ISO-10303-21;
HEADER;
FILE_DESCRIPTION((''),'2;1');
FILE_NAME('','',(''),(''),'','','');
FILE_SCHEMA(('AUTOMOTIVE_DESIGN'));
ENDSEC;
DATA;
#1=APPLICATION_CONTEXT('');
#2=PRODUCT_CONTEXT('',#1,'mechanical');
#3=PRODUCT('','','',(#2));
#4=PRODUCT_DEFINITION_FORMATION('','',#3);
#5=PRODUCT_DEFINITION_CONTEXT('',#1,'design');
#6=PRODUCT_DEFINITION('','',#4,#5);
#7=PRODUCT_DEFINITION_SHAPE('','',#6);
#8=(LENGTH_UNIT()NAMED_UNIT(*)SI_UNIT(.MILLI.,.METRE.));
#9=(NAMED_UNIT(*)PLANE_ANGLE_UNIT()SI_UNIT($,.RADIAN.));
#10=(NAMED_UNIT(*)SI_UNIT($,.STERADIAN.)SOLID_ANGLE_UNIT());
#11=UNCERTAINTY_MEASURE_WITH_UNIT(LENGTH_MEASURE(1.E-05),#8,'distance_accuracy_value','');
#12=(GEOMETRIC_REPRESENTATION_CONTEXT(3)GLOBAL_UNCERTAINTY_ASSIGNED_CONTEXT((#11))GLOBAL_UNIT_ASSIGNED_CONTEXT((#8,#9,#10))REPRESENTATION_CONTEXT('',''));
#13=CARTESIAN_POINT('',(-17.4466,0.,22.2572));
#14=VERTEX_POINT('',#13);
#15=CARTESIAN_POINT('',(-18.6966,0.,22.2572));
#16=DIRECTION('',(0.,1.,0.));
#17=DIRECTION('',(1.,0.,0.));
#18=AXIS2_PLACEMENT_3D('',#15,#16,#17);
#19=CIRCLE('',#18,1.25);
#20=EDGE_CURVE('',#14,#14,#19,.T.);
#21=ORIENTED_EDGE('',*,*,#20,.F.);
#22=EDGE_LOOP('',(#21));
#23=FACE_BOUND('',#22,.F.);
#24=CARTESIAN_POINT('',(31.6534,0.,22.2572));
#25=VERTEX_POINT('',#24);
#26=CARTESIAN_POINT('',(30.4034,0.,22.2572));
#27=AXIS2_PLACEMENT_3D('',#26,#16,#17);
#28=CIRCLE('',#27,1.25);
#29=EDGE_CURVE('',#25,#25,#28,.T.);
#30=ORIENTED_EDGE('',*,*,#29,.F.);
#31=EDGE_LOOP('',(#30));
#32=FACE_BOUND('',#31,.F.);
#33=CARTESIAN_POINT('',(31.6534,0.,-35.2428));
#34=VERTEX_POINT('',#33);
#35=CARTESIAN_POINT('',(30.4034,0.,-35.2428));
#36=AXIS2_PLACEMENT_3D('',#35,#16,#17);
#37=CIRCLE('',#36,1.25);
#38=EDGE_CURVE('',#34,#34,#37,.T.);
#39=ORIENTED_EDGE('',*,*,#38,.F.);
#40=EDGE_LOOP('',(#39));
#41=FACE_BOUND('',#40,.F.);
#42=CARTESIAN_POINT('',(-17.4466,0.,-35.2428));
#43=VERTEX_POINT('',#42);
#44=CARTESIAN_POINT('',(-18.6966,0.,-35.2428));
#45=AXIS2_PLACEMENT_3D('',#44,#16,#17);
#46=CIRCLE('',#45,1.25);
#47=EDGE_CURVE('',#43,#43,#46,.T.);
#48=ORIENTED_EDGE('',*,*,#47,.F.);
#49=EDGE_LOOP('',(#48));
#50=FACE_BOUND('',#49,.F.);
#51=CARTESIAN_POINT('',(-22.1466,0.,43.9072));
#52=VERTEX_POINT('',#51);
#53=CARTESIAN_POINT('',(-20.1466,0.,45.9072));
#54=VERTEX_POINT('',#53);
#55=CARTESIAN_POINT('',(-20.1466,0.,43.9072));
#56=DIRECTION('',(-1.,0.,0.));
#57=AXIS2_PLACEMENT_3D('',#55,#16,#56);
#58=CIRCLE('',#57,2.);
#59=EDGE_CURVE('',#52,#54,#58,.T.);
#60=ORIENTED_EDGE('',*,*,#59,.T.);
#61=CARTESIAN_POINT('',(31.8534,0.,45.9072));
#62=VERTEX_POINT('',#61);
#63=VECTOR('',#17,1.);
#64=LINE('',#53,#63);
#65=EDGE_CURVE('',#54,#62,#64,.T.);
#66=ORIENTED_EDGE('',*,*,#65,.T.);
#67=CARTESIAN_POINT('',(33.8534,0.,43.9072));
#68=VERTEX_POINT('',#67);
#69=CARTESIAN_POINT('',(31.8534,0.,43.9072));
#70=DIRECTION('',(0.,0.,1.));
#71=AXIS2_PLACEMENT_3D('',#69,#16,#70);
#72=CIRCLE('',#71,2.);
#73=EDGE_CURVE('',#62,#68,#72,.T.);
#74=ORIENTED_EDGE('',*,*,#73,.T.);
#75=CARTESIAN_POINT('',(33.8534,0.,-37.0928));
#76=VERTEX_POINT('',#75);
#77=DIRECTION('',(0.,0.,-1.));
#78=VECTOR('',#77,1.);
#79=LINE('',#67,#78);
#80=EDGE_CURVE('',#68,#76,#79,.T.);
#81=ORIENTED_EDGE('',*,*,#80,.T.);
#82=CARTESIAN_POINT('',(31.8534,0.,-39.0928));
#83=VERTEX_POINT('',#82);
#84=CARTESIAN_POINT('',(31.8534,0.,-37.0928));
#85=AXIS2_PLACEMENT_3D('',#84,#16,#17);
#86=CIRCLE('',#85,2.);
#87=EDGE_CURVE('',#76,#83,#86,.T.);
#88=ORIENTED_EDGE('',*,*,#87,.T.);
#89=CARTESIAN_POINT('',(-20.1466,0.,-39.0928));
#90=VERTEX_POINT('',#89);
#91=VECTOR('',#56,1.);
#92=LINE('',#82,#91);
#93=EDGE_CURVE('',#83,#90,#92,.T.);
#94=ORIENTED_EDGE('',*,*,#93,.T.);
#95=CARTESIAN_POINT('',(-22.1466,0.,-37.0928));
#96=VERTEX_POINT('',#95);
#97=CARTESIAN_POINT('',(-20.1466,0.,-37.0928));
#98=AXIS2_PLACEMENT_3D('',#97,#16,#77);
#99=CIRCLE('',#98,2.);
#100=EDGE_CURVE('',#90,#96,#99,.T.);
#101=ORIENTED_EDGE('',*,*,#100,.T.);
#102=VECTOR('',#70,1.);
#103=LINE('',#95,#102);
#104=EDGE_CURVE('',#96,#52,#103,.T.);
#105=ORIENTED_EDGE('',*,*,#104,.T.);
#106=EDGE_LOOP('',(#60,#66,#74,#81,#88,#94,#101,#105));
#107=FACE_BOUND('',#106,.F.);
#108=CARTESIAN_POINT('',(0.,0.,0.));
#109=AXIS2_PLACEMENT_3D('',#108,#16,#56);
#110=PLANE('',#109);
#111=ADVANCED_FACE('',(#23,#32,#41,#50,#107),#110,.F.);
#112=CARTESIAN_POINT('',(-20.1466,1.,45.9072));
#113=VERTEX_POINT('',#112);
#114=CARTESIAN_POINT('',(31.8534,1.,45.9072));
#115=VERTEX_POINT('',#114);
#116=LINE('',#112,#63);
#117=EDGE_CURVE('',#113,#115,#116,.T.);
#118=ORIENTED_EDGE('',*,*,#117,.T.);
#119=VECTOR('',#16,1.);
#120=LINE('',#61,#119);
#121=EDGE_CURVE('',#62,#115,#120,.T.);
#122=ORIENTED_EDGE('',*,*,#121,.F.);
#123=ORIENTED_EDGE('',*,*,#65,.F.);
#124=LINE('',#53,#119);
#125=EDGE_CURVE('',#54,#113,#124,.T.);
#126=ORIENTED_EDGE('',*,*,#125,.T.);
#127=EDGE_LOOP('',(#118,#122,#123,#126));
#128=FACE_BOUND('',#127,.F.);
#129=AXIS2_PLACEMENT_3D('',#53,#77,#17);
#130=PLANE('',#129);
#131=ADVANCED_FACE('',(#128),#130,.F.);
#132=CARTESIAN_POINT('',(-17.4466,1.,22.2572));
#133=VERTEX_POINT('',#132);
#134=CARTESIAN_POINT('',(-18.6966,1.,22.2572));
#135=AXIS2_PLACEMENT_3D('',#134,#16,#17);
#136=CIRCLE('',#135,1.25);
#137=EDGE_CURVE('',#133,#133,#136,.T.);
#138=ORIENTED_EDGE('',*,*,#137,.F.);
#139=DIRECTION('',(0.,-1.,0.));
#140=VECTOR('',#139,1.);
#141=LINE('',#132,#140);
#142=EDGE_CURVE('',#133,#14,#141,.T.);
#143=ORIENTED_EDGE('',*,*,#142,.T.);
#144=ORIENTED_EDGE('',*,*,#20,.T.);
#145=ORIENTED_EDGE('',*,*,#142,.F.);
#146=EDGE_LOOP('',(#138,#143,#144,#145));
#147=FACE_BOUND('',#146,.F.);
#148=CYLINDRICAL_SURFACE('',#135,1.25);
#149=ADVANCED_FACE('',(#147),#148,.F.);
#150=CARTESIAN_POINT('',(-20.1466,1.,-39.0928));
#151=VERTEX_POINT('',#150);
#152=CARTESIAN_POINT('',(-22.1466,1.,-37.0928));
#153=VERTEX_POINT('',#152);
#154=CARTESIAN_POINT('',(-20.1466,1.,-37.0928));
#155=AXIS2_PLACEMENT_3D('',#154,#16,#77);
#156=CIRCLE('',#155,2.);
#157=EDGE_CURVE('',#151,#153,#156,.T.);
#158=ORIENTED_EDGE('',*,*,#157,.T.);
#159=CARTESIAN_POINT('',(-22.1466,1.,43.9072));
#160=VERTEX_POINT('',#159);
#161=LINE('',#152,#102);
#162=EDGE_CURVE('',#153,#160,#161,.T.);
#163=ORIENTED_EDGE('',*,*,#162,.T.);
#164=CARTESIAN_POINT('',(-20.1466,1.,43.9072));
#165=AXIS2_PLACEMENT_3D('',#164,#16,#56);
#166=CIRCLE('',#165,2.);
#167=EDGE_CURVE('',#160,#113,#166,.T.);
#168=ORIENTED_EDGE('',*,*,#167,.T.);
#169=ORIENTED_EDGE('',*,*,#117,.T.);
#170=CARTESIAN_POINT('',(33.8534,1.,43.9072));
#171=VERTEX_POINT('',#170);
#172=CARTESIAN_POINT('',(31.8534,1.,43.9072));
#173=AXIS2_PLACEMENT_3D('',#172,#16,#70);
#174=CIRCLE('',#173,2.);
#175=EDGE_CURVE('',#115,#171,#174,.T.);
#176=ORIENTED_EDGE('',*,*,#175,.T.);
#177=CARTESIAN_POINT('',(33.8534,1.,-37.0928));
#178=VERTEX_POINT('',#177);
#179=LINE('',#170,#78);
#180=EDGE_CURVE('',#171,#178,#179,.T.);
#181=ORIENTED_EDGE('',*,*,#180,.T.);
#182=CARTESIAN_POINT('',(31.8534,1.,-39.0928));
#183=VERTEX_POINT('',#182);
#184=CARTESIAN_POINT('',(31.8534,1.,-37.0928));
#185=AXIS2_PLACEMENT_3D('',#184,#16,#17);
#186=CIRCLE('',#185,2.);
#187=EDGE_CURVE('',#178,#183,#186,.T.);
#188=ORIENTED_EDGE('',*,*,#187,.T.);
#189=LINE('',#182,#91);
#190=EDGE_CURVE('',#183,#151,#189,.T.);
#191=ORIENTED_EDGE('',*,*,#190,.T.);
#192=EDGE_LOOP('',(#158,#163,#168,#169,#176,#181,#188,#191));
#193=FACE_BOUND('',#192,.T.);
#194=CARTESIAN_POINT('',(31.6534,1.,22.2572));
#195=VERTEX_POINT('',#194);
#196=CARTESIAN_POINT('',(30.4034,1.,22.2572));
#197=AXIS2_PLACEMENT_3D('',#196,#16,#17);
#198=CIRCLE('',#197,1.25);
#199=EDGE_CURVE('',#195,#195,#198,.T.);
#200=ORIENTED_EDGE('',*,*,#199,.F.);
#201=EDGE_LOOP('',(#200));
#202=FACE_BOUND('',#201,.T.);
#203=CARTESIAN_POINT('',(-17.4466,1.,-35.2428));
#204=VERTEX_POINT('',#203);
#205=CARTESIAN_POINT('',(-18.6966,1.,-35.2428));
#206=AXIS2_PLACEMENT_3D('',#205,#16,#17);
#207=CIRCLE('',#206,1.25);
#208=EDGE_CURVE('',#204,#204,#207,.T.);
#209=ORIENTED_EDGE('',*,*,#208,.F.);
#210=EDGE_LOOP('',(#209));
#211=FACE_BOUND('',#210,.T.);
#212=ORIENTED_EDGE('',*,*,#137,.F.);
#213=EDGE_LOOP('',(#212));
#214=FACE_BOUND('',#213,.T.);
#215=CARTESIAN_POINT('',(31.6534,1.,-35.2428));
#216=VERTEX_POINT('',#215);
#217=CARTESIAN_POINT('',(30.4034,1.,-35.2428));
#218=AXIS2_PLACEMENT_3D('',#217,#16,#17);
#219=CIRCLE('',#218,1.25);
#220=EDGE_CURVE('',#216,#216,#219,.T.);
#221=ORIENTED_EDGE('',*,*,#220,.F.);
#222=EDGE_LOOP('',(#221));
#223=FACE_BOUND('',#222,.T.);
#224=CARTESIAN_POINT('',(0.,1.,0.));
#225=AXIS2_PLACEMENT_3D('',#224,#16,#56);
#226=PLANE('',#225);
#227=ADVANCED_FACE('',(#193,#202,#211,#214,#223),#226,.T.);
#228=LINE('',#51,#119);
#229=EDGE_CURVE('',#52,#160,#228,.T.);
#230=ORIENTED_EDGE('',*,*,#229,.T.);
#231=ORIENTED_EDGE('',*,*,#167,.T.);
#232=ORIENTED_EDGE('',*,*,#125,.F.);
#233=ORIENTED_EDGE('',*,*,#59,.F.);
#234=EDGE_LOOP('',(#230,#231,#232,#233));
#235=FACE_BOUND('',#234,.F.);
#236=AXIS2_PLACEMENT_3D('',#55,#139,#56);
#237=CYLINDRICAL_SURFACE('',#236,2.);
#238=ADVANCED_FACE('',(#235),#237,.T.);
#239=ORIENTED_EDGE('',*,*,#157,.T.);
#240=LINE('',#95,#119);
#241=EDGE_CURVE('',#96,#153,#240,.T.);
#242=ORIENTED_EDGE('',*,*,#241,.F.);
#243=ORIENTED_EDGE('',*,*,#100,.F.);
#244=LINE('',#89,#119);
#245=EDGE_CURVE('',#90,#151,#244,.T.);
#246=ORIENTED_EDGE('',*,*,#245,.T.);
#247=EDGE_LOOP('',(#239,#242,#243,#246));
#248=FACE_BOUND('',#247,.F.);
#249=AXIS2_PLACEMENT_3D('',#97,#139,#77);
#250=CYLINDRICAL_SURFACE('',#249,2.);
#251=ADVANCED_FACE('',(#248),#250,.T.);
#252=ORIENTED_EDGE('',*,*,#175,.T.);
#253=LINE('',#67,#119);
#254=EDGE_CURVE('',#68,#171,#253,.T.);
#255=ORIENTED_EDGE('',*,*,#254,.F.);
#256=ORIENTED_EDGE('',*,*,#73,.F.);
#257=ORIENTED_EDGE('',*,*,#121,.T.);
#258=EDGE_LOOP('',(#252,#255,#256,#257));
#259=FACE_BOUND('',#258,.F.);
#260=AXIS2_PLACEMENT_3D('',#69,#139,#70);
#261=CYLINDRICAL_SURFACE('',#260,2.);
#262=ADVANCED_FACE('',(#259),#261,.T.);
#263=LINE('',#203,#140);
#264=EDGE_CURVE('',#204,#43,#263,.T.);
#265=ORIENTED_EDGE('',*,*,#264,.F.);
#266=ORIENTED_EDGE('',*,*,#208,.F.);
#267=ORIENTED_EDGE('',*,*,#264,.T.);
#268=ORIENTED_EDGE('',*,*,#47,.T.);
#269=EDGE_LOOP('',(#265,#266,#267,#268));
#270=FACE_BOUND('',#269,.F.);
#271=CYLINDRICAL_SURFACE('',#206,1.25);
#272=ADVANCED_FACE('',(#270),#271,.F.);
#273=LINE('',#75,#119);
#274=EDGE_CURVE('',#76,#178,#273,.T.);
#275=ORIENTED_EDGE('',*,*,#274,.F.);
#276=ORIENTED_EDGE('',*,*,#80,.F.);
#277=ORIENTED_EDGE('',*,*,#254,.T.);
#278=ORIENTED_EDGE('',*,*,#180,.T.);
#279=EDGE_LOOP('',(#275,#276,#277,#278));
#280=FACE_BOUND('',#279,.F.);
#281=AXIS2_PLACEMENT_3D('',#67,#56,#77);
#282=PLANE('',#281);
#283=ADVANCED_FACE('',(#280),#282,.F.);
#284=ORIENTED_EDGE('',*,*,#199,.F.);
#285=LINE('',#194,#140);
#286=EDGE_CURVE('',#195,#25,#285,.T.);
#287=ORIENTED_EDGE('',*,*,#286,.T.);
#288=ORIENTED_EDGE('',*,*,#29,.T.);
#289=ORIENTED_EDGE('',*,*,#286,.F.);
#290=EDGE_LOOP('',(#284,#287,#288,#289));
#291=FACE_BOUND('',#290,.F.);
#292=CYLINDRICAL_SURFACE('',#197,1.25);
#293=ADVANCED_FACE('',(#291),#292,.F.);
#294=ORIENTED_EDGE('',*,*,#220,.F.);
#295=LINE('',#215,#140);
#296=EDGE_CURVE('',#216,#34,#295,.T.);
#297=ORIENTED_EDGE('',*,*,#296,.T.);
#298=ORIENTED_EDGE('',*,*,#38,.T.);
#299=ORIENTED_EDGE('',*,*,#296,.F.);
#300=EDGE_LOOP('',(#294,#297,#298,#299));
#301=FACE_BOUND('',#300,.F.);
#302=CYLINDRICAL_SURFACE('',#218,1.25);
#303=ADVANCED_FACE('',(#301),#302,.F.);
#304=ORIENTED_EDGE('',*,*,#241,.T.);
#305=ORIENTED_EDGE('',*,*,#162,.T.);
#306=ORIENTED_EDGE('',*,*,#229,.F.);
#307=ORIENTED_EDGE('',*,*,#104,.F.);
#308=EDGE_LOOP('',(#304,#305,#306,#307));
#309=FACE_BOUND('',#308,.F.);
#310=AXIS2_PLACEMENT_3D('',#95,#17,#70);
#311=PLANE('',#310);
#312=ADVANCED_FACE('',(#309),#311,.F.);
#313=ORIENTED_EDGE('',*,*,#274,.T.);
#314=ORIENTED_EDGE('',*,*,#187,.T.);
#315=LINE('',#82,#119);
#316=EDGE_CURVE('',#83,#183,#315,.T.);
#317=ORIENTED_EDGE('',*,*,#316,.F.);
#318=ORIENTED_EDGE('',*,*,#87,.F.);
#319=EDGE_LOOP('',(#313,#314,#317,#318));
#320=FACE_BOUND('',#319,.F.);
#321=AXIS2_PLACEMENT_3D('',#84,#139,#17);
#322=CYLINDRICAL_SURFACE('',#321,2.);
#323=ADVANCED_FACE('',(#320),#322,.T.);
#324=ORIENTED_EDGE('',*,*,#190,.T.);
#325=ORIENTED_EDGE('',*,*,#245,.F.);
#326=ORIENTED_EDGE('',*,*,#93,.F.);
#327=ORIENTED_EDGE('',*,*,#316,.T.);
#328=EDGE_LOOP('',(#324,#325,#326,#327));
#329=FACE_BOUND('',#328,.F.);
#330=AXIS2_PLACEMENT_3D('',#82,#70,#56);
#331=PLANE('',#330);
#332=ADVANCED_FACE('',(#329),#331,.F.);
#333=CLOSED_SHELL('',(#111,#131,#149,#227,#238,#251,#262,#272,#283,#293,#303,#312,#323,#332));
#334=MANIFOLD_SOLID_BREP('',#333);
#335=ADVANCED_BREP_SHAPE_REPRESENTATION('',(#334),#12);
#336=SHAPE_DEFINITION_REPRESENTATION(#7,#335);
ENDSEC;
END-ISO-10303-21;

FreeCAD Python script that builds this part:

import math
import FreeCAD as App
import Part
import Sketcher

doc = App.newDocument("Part")
body = doc.addObject("PartDesign::Body", "Body")

# Sketch on XZ plane
sketch1 = body.newObject("Sketcher::SketchObject", "Sketch")
sketch1.AttachmentSupport = (doc.getObject("XZ_Plane"), [""])
sketch1.MapMode = "FlatFace"
sketch1.addGeometry([
    Part.ArcOfCircle(Part.Circle(App.Vector(-20.1, 43.9, 0), App.Vector(0, 0, 1), 2), math.radians(90), math.radians(180)),  # 0
    Part.LineSegment(App.Vector(-20.1, 45.9, 0), App.Vector(31.9, 45.9, 0)),  # 1
    Part.ArcOfCircle(Part.Circle(App.Vector(31.9, 43.9, 0), App.Vector(0, 0, 1), 2), math.radians(0), math.radians(90)),  # 2
    Part.LineSegment(App.Vector(33.9, 43.9, 0), App.Vector(33.9, -37.1, 0)),  # 3
    Part.ArcOfCircle(Part.Circle(App.Vector(31.9, -37.1, 0), App.Vector(0, 0, 1), 2), math.radians(-90), math.radians(0)),  # 4
    Part.LineSegment(App.Vector(31.9, -39.1, 0), App.Vector(-20.1, -39.1, 0)),  # 5
    Part.ArcOfCircle(Part.Circle(App.Vector(-20.1, -37.1, 0), App.Vector(0, 0, 1), 2), math.radians(180), math.radians(270)),  # 6
    Part.LineSegment(App.Vector(-22.1, -37.1, 0), App.Vector(-22.1, 43.9, 0)),  # 7
], False)
sketch1.addConstraint([
    Sketcher.Constraint("Tangent", 0, 1, 1, 1),
    Sketcher.Constraint("Tangent", 1, 2, 2, 2),
    Sketcher.Constraint("Tangent", 2, 1, 3, 1),
    Sketcher.Constraint("Tangent", 3, 2, 4, 2),
    Sketcher.Constraint("Tangent", 4, 1, 5, 1),
    Sketcher.Constraint("Tangent", 5, 2, 6, 2),
    Sketcher.Constraint("Tangent", 6, 1, 7, 1),
    Sketcher.Constraint("Tangent", 7, 2, 0, 2),
    Sketcher.Constraint("Horizontal", 1),
    Sketcher.Constraint("Vertical", 3),
    Sketcher.Constraint("Horizontal", 5),
    Sketcher.Constraint("Vertical", 7),
    Sketcher.Constraint("Equal", 0, 2),
    Sketcher.Constraint("Equal", 2, 4),
    Sketcher.Constraint("Equal", 4, 6),
    Sketcher.Constraint("Radius", 0, 2.0),
    Sketcher.Constraint("DistanceX", 6, 1, 3, 2, 56.0),
    Sketcher.Constraint("DistanceY", 3, 2, 3, 1, 81.0),
    Sketcher.Constraint("DistanceX", 0, 3, -1, 1, 20.1466),
    Sketcher.Constraint("DistanceY", -1, 1, 0, 3, 43.9072),
])
pad1 = body.newObject("PartDesign::Pad", "Pad")
pad1.Profile = sketch1
pad1.Length = 1
pad1.Reversed = True

# Sketch on XZ plane
sketch2 = body.newObject("Sketcher::SketchObject", "Sketch001")
sketch2.AttachmentSupport = (doc.getObject("XZ_Plane"), [""])
sketch2.MapMode = "FlatFace"
sketch2.AttachmentOffset = App.Placement(App.Vector(0, 0, -1), App.Rotation())
sketch2.addGeometry([
    Part.Circle(App.Vector(-18.7, -35.2, 0), App.Vector(0, 0, 1), 1.2),
    Part.Circle(App.Vector(30.4, -35.2, 0), App.Vector(0, 0, 1), 1.2),
    Part.Circle(App.Vector(-18.7, 22.3, 0), App.Vector(0, 0, 1), 1.2),
    Part.Circle(App.Vector(30.4, 22.3, 0), App.Vector(0, 0, 1), 1.2),
], False)
sketch2.addConstraint([
    Sketcher.Constraint("Equal", 0, 1),
    Sketcher.Constraint("Equal", 1, 2),
    Sketcher.Constraint("Equal", 2, 3),
    Sketcher.Constraint("Horizontal", 0, 3, 1, 3),
    Sketcher.Constraint("Horizontal", 2, 3, 3, 3),
    Sketcher.Constraint("Vertical", 0, 3, 2, 3),
    Sketcher.Constraint("Vertical", 1, 3, 3, 3),
    Sketcher.Constraint("Diameter", 0, 2.5),
    Sketcher.Constraint("DistanceY", 0, 3, 2, 3, 57.5),
    Sketcher.Constraint("DistanceX", 0, 3, 1, 3, 49.1),
    Sketcher.Constraint("DistanceX", 0, 3, -1, 1, 18.6966),
    Sketcher.Constraint("DistanceY", 0, 3, -1, 1, 35.2428),
])
pocket1 = body.newObject("PartDesign::Pocket", "Pocket")
pocket1.Profile = sketch2
pocket1.Length = 1
pocket1.Reversed = True

doc.recompute()
